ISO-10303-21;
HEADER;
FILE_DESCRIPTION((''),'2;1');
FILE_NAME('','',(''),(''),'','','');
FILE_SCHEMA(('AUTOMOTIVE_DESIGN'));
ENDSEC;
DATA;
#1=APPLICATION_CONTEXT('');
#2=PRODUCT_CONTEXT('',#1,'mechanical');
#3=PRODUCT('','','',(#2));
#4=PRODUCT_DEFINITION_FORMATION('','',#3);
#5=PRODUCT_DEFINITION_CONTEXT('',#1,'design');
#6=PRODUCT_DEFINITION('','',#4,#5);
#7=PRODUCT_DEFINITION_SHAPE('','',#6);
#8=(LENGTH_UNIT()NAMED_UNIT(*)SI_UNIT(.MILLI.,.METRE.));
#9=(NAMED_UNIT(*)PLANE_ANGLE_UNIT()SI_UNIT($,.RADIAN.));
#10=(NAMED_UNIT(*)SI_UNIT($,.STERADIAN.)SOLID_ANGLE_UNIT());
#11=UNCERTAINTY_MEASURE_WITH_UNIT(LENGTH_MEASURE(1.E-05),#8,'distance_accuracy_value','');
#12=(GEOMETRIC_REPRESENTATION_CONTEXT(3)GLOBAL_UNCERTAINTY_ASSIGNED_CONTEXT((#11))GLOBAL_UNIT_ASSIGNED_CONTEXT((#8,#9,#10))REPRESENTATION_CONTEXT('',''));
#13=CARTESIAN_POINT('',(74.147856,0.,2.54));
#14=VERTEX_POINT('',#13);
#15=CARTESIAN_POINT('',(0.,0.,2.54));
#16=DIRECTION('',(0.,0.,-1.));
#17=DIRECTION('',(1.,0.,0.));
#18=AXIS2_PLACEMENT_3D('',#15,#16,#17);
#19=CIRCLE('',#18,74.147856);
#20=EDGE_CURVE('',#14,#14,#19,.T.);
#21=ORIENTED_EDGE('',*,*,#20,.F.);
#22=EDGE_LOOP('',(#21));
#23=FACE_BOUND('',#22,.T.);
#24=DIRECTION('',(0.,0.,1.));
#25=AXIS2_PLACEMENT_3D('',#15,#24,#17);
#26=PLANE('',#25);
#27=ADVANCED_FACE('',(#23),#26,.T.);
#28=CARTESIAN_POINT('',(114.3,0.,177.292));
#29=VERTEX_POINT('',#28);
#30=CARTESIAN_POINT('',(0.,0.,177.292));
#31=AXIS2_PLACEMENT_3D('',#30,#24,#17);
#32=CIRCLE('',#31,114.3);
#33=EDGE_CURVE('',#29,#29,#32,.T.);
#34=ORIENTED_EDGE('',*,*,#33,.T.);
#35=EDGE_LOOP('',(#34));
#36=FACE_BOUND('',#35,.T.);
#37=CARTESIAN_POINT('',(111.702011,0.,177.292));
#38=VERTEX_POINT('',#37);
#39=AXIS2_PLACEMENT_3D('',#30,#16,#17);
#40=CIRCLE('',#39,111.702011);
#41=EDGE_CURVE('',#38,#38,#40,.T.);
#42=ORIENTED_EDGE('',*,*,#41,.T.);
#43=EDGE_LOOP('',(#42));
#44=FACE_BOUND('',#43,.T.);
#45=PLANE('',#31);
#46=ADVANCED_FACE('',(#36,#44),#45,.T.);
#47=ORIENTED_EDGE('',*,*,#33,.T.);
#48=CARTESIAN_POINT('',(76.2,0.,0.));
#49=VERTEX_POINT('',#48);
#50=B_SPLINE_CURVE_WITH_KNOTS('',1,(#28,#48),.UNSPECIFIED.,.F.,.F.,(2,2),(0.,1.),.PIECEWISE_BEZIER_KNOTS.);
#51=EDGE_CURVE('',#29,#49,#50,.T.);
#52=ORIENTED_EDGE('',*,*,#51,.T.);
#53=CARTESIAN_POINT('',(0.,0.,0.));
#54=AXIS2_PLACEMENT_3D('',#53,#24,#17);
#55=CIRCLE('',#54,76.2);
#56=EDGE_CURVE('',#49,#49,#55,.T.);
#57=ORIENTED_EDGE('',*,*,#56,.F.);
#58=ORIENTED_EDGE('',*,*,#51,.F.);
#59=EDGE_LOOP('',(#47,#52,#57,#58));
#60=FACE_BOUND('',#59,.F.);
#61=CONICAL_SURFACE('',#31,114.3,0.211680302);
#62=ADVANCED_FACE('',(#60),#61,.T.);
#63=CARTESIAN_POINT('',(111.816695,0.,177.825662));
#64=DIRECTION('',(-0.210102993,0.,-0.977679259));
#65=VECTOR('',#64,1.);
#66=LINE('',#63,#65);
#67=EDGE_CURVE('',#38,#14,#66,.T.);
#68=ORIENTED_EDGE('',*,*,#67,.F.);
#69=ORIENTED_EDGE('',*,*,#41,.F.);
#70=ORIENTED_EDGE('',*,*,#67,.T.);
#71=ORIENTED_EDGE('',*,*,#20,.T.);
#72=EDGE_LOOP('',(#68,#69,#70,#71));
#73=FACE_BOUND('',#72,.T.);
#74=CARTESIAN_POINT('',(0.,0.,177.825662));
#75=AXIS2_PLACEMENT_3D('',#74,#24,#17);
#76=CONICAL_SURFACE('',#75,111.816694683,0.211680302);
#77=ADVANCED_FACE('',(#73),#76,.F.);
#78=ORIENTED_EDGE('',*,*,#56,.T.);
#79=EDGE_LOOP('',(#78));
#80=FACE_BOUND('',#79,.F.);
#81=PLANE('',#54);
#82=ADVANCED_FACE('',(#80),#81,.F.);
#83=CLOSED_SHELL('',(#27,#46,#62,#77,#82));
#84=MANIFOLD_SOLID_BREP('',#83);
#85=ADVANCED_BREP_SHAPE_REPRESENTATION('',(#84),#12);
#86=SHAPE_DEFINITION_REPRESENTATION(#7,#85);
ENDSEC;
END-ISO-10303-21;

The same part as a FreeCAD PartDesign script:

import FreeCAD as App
import Part
import Sketcher
from FreeCAD import Vector
Q = App.Units.Quantity


def faces_at(feature, points):
    """Names of the faces that lie closest to the given points."""
    faces = feature.Shape.Faces
    near = lambda p: min(range(len(faces)), key=lambda i: faces[i].distToShape(Part.Vertex(*p))[0])
    return sorted({f"Face{near(p) + 1}" for p in points})

doc = App.newDocument("Part")
body = doc.addObject("PartDesign::Body", "Body")

sketch1 = doc.addObject("Sketcher::SketchObject", "Sketch")
body.addObject(sketch1)
sketch1.AttachmentSupport = (doc.XY_Plane, [""])
sketch1.MapMode = "FlatFace"
sketch1.AttachmentOffset = App.Placement(Vector(0, 0, 6.98 * 25.4), App.Rotation())
sketch1.addGeometry(Part.Circle(Vector(0, 0, 0), Vector(0, 0, 1), 114), False)
sketch1.addConstraint([
    Sketcher.Constraint("Coincident", 0, 3, -1, 1),
    Sketcher.Constraint("Diameter", 0, Q("9 in")),
])

sketch2 = doc.addObject("Sketcher::SketchObject", "Sketch001")
body.addObject(sketch2)
sketch2.AttachmentSupport = (doc.XY_Plane, [""])
sketch2.MapMode = "FlatFace"
sketch2.addGeometry(Part.Circle(Vector(0, 0, 0), Vector(0, 0, 1), 76), False)
sketch2.addConstraint([
    Sketcher.Constraint("Coincident", 0, 3, -1, 1),
    Sketcher.Constraint("Diameter", 0, Q("6 in")),
])

additiveloft = doc.addObject("PartDesign::AdditiveLoft", "AdditiveLoft")
body.addObject(additiveloft)
additiveloft.Profile = sketch1
additiveloft.Sections = [sketch2]
doc.recompute()

thickness = doc.addObject("PartDesign::Thickness", "Thickness")
body.addObject(thickness)
thickness.Base = (additiveloft, faces_at(additiveloft, [(0, 0, 177.292)]))
thickness.Value = Q("0.1 in")
thickness.Reversed = True
thickness.Join = "Intersection"

doc.recompute()
